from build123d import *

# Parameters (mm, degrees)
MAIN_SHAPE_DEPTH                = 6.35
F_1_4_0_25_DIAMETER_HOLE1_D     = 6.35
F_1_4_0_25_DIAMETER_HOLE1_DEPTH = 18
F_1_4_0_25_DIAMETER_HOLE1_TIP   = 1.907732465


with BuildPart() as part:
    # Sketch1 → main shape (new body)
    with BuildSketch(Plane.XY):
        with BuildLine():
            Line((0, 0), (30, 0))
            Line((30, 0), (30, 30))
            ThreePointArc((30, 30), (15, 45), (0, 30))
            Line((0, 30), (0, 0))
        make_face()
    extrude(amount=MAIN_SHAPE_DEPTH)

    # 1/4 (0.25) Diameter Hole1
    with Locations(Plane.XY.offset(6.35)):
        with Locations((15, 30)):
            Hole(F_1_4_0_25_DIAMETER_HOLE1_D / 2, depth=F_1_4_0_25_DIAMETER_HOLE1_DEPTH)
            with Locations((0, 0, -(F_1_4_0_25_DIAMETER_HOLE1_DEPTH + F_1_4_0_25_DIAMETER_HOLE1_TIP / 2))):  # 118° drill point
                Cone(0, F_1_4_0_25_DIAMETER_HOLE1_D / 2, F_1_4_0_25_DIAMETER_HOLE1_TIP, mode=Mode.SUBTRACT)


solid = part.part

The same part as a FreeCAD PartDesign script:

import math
import FreeCAD as App
import Part
import Sketcher
from FreeCAD import Vector

doc = App.newDocument("Part")
body = doc.addObject("PartDesign::Body", "Body")

sketch1 = body.newObject("Sketcher::SketchObject", "Sketch")
sketch1.AttachmentSupport = (doc.getObject("XY_Plane"), [""])
sketch1.MapMode = "FlatFace"
sketch1.addGeometry([
    Part.LineSegment(Vector(0, 0, 0), Vector(30, 0, 0)),
    Part.LineSegment(Vector(30, 0, 0), Vector(30, 30, 0)),
    Part.ArcOfCircle(Part.Circle(Vector(15, 30, 0), Vector(0, 0, 1), 15), math.radians(0), math.radians(180)),
    Part.LineSegment(Vector(0, 30, 0), Vector(0, 0, 0)),
], False)
sketch1.addConstraint([
    Sketcher.Constraint("Coincident", 0, 2, 1, 1),
    Sketcher.Constraint("Tangent", 1, 2, 2, 1),
    Sketcher.Constraint("Tangent", 2, 2, 3, 1),
    Sketcher.Constraint("Coincident", 3, 2, 0, 1),
    Sketcher.Constraint("Horizontal", 0),
    Sketcher.Constraint("Vertical", 1),
    Sketcher.Constraint("Vertical", 3),
    Sketcher.Constraint("Coincident", 3, 2, -1, 1),
    Sketcher.Constraint("Equal", 0, 1),
    Sketcher.Constraint("Radius", 2, 15.0),
])
pad1 = body.newObject("PartDesign::Pad", "Pad")
pad1.Profile = sketch1
pad1.Length = 6.35

sketch2 = body.newObject("Sketcher::SketchObject", "Sketch001")
sketch2.AttachmentSupport = (doc.getObject("XY_Plane"), [""])
sketch2.MapMode = "FlatFace"
sketch2.AttachmentOffset = App.Placement(Vector(0, 0, 6.35), App.Rotation())
sketch2.addGeometry(Part.Circle(Vector(15, 30, 0), Vector(0, 0, 1), 3.2), False)
sketch2.addConstraint([
    Sketcher.Constraint("Diameter", 0, 6.35),
    Sketcher.Constraint("DistanceX", -1, 1, 0, 3, 15.0),
    Sketcher.Constraint("DistanceY", -1, 1, 0, 3, 30.0),
])
doc.recompute()
hole = body.newObject("PartDesign::Hole", "Hole")
hole.Profile = sketch2
hole.ThreadType = "None"
hole.Diameter = 6.35
hole.DepthType = "Dimension"
hole.Depth = 18
hole.DrillPoint = "Angled"
hole.DrillPointAngle = 118

doc.recompute()
